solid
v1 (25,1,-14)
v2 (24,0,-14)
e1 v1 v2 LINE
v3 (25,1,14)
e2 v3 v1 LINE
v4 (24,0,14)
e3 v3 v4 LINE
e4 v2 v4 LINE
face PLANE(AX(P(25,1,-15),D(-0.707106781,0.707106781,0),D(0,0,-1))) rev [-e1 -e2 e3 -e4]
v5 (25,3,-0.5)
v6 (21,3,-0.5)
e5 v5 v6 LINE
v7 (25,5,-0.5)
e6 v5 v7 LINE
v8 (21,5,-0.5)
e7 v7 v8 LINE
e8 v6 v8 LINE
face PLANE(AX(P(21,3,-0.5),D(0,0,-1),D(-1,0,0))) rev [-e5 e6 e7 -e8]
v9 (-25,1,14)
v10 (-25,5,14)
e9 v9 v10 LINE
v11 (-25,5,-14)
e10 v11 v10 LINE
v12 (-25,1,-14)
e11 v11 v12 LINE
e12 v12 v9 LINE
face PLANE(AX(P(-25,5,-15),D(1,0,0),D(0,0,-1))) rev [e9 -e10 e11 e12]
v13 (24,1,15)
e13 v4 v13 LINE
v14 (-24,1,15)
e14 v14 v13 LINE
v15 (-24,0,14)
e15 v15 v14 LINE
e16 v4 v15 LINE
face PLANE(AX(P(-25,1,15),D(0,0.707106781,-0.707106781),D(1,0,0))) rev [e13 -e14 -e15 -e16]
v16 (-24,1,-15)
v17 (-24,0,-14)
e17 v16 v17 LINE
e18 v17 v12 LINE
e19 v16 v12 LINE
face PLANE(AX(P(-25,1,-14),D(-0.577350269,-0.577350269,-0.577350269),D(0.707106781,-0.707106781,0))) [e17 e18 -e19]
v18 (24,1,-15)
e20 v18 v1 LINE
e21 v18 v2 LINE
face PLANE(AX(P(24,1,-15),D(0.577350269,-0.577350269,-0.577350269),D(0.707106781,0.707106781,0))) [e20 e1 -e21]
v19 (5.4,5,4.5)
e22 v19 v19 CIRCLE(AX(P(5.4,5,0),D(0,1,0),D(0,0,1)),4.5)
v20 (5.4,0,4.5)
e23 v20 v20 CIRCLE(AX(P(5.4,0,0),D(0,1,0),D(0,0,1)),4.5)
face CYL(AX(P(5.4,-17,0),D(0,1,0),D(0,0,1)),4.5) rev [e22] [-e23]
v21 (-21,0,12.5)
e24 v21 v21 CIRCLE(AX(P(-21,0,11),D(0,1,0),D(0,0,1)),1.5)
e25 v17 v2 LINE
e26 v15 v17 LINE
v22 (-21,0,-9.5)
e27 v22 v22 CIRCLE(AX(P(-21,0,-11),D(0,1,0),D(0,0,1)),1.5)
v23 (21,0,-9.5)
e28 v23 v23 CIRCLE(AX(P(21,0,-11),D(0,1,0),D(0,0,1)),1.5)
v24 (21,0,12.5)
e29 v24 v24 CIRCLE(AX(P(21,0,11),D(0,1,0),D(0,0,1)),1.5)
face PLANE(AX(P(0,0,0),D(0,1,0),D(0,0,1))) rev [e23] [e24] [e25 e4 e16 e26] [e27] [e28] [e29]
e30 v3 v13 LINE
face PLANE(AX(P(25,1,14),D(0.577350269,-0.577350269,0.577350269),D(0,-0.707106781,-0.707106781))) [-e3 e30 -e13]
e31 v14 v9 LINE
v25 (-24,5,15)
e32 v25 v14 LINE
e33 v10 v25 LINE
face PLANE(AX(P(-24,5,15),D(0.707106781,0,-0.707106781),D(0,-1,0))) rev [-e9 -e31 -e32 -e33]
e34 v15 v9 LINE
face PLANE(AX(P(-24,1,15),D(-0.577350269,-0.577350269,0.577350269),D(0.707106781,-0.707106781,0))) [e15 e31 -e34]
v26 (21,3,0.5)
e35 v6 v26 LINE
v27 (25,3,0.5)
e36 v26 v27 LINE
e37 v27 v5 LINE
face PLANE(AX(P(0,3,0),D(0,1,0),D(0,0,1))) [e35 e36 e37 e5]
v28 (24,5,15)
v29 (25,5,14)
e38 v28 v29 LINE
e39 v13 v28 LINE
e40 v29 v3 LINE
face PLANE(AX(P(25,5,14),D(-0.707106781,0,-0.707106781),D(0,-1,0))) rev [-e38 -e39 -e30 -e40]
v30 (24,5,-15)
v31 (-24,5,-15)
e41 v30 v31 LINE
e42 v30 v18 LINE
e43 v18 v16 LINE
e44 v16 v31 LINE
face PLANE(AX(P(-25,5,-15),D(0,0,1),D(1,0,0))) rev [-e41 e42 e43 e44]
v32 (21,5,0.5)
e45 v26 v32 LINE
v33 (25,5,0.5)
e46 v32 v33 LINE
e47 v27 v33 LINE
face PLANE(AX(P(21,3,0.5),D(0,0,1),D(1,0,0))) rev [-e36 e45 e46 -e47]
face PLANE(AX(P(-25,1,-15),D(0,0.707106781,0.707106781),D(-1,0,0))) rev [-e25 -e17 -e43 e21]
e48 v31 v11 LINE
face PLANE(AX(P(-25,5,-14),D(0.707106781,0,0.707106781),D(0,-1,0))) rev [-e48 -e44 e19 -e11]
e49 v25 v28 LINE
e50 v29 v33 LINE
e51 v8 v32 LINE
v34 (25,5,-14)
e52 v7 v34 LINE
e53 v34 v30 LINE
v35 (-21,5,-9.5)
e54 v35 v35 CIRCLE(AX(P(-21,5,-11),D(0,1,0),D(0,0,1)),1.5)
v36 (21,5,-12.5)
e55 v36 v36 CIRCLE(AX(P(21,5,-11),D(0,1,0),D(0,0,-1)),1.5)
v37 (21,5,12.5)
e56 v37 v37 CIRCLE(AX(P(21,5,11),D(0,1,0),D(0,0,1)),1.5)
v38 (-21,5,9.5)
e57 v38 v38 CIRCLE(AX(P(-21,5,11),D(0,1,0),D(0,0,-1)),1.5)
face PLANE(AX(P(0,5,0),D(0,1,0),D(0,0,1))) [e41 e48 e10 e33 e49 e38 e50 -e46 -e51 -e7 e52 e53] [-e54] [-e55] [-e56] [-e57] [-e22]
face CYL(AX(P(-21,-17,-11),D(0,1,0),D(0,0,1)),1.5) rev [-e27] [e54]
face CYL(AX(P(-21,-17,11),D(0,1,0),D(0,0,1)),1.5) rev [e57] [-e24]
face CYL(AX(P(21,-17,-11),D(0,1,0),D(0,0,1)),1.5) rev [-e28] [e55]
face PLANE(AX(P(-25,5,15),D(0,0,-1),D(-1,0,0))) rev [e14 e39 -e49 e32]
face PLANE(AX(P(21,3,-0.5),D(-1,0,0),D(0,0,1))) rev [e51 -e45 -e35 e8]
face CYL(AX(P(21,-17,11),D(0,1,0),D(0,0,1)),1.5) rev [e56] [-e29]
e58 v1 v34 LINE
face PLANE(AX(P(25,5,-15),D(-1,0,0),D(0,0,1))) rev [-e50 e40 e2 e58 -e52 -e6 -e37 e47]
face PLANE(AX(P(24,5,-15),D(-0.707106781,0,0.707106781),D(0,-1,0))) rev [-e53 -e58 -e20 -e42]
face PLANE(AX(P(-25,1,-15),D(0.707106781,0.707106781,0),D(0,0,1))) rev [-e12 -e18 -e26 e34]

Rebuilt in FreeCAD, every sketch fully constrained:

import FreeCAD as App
import Part
import Sketcher


def edges_at(feature, points):
    """Names of the edges that pass closest to the given points."""
    edges = feature.Shape.Edges
    near = lambda p: min(range(len(edges)), key=lambda i: edges[i].distToShape(Part.Vertex(*p))[0])
    return sorted({f"Edge{near(p) + 1}" for p in points})

doc = App.newDocument("Part")
body = doc.addObject("PartDesign::Body", "Body")

# Sketch on XZ plane
sketch1 = body.newObject("Sketcher::SketchObject", "Sketch")
sketch1.AttachmentSupport = (doc.getObject("XZ_Plane"), [""])
sketch1.MapMode = "FlatFace"
sketch1.addGeometry(Part.LineSegment(App.Vector(-25, -15, 0), App.Vector(-25, 15, 0)), False)
sketch1.addGeometry(Part.LineSegment(App.Vector(-25, 15, 0), App.Vector(25, 15, 0)), False)
sketch1.addGeometry(Part.LineSegment(App.Vector(25, 15, 0), App.Vector(25, -15, 0)), False)
sketch1.addGeometry(Part.LineSegment(App.Vector(25, -15, 0), App.Vector(-25, -15, 0)), False)
sketch1.addConstraint(Sketcher.Constraint("Coincident", 0, 2, 1, 1))
sketch1.addConstraint(Sketcher.Constraint("Coincident", 1, 2, 2, 1))
sketch1.addConstraint(Sketcher.Constraint("Coincident", 2, 2, 3, 1))
sketch1.addConstraint(Sketcher.Constraint("Coincident", 3, 2, 0, 1))
sketch1.addConstraint(Sketcher.Constraint("Vertical", 0))
sketch1.addConstraint(Sketcher.Constraint("Horizontal", 1))
sketch1.addConstraint(Sketcher.Constraint("Vertical", 2))
sketch1.addConstraint(Sketcher.Constraint("Horizontal", 3))
sketch1.addConstraint(Sketcher.Constraint("Symmetric", 0, 2, 2, 2, -1, 1))
sketch1.addConstraint(Sketcher.Constraint("DistanceX", 1, 1, 1, 2, 50.0))
sketch1.addConstraint(Sketcher.Constraint("DistanceY", 0, 1, 0, 2, 30.0))
pad1 = body.newObject("PartDesign::Pad", "Pad")
pad1.Profile = sketch1
pad1.Length = 5
pad1.Reversed = True

# Sketch on XZ plane
sketch2 = body.newObject("Sketcher::SketchObject", "Sketch001")
sketch2.AttachmentSupport = (doc.getObject("XZ_Plane"), [""])
sketch2.MapMode = "FlatFace"
sketch2.AttachmentOffset = App.Placement(App.Vector(0, 0, -5), App.Rotation())
sketch2.addGeometry(Part.LineSegment(App.Vector(21, -0.5, 0), App.Vector(21, 0.5, 0)), False)
sketch2.addGeometry(Part.LineSegment(App.Vector(21, 0.5, 0), App.Vector(25, 0.5, 0)), False)
sketch2.addGeometry(Part.LineSegment(App.Vector(25, 0.5, 0), App.Vector(25, -0.5, 0)), False)
sketch2.addGeometry(Part.LineSegment(App.Vector(25, -0.5, 0), App.Vector(21, -0.5, 0)), False)
sketch2.addConstraint(Sketcher.Constraint("Coincident", 0, 2, 1, 1))
sketch2.addConstraint(Sketcher.Constraint("Coincident", 1, 2, 2, 1))
sketch2.addConstraint(Sketcher.Constraint("Coincident", 2, 2, 3, 1))
sketch2.addConstraint(Sketcher.Constraint("Coincident", 3, 2, 0, 1))
sketch2.addConstraint(Sketcher.Constraint("Vertical", 0))
sketch2.addConstraint(Sketcher.Constraint("Horizontal", 1))
sketch2.addConstraint(Sketcher.Constraint("Vertical", 2))
sketch2.addConstraint(Sketcher.Constraint("Horizontal", 3))
sketch2.addConstraint(Sketcher.Constraint("DistanceX", 1, 1, 1, 2, 4.0))
sketch2.addConstraint(Sketcher.Constraint("DistanceY", 0, 1, 0, 2, 1.0))
sketch2.addConstraint(Sketcher.Constraint("DistanceX", -1, 1, 0, 2, 21.0))
sketch2.addConstraint(Sketcher.Constraint("DistanceY", -1, 1, 0, 2, 0.5))
pocket1 = body.newObject("PartDesign::Pocket", "Pocket")
pocket1.Profile = sketch2
pocket1.Length = 2
pocket1.Reversed = True

# Sketch on XZ plane
sketch3 = body.newObject("Sketcher::SketchObject", "Sketch002")
sketch3.AttachmentSupport = (doc.getObject("XZ_Plane"), [""])
sketch3.MapMode = "FlatFace"
sketch3.AttachmentOffset = App.Placement(App.Vector(0, 0, -5), App.Rotation())
sketch3.addGeometry(Part.Circle(App.Vector(5.4, 0, 0), App.Vector(0, 0, 1), 4.5), False)
sketch3.addConstraint(Sketcher.Constraint("PointOnObject", 0, 3, -1))
sketch3.addConstraint(Sketcher.Constraint("Diameter", 0, 9.0))
sketch3.addConstraint(Sketcher.Constraint("DistanceX", -1, 1, 0, 3, 5.4))
pocket2 = body.newObject("PartDesign::Pocket", "Pocket001")
pocket2.Profile = sketch3
pocket2.Length = 22
pocket2.Reversed = True

# Sketch on XZ plane
sketch4 = body.newObject("Sketcher::SketchObject", "Sketch003")
sketch4.AttachmentSupport = (doc.getObject("XZ_Plane"), [""])
sketch4.MapMode = "FlatFace"
sketch4.AttachmentOffset = App.Placement(App.Vector(0, 0, -5), App.Rotation())
sketch4.addGeometry(Part.Circle(App.Vector(5.4, 0, 0), App.Vector(0, 0, 1), 4.5), False)
sketch4.addGeometry(Part.Circle(App.Vector(-21, -11, 0), App.Vector(0, 0, 1), 1.5), False)
sketch4.addGeometry(Part.Circle(App.Vector(21, -11, 0), App.Vector(0, 0, 1), 1.5), False)
sketch4.addGeometry(Part.Circle(App.Vector(21, 11, 0), App.Vector(0, 0, 1), 1.5), False)
sketch4.addGeometry(Part.Circle(App.Vector(-21, 11, 0), App.Vector(0, 0, 1), 1.5), False)
sketch4.addConstraint(Sketcher.Constraint("Equal", 1, 2))
sketch4.addConstraint(Sketcher.Constraint("Equal", 2, 3))
sketch4.addConstraint(Sketcher.Constraint("Equal", 3, 4))
sketch4.addConstraint(Sketcher.Constraint("Symmetric", 1, 3, 3, 3, -1, 1))
sketch4.addConstraint(Sketcher.Constraint("Symmetric", 2, 3, 4, 3, -1, 1))
sketch4.addConstraint(Sketcher.Constraint("Symmetric", 1, 3, 2, 3, -2))
sketch4.addConstraint(Sketcher.Constraint("PointOnObject", 0, 3, -1))
sketch4.addConstraint(Sketcher.Constraint("Diameter", 0, 9.0))
sketch4.addConstraint(Sketcher.Constraint("Diameter", 1, 3.0))
sketch4.addConstraint(Sketcher.Constraint("DistanceX", 1, 3, -1, 1, 21.0))
sketch4.addConstraint(Sketcher.Constraint("DistanceY", 1, 3, -1, 1, 11.0))
sketch4.addConstraint(Sketcher.Constraint("DistanceX", -1, 1, 0, 3, 5.4))
pocket3 = body.newObject("PartDesign::Pocket", "Pocket002")
pocket3.Profile = sketch4
pocket3.Length = 22
pocket3.Reversed = True
doc.recompute()

chamfer = body.newObject("PartDesign::Chamfer", "Chamfer")
chamfer.Base = (pocket3, edges_at(pocket3, [
    (0, 0, 15),
    (-25, 0, 0),
    (0, 0, -15),
    (25, 0, 0),
    (25, 2.5, 15),
    (-25, 2.5, 15),
    (-25, 2.5, -15),
    (25, 2.5, -15),
]))
chamfer.Size = 1

doc.recompute()
